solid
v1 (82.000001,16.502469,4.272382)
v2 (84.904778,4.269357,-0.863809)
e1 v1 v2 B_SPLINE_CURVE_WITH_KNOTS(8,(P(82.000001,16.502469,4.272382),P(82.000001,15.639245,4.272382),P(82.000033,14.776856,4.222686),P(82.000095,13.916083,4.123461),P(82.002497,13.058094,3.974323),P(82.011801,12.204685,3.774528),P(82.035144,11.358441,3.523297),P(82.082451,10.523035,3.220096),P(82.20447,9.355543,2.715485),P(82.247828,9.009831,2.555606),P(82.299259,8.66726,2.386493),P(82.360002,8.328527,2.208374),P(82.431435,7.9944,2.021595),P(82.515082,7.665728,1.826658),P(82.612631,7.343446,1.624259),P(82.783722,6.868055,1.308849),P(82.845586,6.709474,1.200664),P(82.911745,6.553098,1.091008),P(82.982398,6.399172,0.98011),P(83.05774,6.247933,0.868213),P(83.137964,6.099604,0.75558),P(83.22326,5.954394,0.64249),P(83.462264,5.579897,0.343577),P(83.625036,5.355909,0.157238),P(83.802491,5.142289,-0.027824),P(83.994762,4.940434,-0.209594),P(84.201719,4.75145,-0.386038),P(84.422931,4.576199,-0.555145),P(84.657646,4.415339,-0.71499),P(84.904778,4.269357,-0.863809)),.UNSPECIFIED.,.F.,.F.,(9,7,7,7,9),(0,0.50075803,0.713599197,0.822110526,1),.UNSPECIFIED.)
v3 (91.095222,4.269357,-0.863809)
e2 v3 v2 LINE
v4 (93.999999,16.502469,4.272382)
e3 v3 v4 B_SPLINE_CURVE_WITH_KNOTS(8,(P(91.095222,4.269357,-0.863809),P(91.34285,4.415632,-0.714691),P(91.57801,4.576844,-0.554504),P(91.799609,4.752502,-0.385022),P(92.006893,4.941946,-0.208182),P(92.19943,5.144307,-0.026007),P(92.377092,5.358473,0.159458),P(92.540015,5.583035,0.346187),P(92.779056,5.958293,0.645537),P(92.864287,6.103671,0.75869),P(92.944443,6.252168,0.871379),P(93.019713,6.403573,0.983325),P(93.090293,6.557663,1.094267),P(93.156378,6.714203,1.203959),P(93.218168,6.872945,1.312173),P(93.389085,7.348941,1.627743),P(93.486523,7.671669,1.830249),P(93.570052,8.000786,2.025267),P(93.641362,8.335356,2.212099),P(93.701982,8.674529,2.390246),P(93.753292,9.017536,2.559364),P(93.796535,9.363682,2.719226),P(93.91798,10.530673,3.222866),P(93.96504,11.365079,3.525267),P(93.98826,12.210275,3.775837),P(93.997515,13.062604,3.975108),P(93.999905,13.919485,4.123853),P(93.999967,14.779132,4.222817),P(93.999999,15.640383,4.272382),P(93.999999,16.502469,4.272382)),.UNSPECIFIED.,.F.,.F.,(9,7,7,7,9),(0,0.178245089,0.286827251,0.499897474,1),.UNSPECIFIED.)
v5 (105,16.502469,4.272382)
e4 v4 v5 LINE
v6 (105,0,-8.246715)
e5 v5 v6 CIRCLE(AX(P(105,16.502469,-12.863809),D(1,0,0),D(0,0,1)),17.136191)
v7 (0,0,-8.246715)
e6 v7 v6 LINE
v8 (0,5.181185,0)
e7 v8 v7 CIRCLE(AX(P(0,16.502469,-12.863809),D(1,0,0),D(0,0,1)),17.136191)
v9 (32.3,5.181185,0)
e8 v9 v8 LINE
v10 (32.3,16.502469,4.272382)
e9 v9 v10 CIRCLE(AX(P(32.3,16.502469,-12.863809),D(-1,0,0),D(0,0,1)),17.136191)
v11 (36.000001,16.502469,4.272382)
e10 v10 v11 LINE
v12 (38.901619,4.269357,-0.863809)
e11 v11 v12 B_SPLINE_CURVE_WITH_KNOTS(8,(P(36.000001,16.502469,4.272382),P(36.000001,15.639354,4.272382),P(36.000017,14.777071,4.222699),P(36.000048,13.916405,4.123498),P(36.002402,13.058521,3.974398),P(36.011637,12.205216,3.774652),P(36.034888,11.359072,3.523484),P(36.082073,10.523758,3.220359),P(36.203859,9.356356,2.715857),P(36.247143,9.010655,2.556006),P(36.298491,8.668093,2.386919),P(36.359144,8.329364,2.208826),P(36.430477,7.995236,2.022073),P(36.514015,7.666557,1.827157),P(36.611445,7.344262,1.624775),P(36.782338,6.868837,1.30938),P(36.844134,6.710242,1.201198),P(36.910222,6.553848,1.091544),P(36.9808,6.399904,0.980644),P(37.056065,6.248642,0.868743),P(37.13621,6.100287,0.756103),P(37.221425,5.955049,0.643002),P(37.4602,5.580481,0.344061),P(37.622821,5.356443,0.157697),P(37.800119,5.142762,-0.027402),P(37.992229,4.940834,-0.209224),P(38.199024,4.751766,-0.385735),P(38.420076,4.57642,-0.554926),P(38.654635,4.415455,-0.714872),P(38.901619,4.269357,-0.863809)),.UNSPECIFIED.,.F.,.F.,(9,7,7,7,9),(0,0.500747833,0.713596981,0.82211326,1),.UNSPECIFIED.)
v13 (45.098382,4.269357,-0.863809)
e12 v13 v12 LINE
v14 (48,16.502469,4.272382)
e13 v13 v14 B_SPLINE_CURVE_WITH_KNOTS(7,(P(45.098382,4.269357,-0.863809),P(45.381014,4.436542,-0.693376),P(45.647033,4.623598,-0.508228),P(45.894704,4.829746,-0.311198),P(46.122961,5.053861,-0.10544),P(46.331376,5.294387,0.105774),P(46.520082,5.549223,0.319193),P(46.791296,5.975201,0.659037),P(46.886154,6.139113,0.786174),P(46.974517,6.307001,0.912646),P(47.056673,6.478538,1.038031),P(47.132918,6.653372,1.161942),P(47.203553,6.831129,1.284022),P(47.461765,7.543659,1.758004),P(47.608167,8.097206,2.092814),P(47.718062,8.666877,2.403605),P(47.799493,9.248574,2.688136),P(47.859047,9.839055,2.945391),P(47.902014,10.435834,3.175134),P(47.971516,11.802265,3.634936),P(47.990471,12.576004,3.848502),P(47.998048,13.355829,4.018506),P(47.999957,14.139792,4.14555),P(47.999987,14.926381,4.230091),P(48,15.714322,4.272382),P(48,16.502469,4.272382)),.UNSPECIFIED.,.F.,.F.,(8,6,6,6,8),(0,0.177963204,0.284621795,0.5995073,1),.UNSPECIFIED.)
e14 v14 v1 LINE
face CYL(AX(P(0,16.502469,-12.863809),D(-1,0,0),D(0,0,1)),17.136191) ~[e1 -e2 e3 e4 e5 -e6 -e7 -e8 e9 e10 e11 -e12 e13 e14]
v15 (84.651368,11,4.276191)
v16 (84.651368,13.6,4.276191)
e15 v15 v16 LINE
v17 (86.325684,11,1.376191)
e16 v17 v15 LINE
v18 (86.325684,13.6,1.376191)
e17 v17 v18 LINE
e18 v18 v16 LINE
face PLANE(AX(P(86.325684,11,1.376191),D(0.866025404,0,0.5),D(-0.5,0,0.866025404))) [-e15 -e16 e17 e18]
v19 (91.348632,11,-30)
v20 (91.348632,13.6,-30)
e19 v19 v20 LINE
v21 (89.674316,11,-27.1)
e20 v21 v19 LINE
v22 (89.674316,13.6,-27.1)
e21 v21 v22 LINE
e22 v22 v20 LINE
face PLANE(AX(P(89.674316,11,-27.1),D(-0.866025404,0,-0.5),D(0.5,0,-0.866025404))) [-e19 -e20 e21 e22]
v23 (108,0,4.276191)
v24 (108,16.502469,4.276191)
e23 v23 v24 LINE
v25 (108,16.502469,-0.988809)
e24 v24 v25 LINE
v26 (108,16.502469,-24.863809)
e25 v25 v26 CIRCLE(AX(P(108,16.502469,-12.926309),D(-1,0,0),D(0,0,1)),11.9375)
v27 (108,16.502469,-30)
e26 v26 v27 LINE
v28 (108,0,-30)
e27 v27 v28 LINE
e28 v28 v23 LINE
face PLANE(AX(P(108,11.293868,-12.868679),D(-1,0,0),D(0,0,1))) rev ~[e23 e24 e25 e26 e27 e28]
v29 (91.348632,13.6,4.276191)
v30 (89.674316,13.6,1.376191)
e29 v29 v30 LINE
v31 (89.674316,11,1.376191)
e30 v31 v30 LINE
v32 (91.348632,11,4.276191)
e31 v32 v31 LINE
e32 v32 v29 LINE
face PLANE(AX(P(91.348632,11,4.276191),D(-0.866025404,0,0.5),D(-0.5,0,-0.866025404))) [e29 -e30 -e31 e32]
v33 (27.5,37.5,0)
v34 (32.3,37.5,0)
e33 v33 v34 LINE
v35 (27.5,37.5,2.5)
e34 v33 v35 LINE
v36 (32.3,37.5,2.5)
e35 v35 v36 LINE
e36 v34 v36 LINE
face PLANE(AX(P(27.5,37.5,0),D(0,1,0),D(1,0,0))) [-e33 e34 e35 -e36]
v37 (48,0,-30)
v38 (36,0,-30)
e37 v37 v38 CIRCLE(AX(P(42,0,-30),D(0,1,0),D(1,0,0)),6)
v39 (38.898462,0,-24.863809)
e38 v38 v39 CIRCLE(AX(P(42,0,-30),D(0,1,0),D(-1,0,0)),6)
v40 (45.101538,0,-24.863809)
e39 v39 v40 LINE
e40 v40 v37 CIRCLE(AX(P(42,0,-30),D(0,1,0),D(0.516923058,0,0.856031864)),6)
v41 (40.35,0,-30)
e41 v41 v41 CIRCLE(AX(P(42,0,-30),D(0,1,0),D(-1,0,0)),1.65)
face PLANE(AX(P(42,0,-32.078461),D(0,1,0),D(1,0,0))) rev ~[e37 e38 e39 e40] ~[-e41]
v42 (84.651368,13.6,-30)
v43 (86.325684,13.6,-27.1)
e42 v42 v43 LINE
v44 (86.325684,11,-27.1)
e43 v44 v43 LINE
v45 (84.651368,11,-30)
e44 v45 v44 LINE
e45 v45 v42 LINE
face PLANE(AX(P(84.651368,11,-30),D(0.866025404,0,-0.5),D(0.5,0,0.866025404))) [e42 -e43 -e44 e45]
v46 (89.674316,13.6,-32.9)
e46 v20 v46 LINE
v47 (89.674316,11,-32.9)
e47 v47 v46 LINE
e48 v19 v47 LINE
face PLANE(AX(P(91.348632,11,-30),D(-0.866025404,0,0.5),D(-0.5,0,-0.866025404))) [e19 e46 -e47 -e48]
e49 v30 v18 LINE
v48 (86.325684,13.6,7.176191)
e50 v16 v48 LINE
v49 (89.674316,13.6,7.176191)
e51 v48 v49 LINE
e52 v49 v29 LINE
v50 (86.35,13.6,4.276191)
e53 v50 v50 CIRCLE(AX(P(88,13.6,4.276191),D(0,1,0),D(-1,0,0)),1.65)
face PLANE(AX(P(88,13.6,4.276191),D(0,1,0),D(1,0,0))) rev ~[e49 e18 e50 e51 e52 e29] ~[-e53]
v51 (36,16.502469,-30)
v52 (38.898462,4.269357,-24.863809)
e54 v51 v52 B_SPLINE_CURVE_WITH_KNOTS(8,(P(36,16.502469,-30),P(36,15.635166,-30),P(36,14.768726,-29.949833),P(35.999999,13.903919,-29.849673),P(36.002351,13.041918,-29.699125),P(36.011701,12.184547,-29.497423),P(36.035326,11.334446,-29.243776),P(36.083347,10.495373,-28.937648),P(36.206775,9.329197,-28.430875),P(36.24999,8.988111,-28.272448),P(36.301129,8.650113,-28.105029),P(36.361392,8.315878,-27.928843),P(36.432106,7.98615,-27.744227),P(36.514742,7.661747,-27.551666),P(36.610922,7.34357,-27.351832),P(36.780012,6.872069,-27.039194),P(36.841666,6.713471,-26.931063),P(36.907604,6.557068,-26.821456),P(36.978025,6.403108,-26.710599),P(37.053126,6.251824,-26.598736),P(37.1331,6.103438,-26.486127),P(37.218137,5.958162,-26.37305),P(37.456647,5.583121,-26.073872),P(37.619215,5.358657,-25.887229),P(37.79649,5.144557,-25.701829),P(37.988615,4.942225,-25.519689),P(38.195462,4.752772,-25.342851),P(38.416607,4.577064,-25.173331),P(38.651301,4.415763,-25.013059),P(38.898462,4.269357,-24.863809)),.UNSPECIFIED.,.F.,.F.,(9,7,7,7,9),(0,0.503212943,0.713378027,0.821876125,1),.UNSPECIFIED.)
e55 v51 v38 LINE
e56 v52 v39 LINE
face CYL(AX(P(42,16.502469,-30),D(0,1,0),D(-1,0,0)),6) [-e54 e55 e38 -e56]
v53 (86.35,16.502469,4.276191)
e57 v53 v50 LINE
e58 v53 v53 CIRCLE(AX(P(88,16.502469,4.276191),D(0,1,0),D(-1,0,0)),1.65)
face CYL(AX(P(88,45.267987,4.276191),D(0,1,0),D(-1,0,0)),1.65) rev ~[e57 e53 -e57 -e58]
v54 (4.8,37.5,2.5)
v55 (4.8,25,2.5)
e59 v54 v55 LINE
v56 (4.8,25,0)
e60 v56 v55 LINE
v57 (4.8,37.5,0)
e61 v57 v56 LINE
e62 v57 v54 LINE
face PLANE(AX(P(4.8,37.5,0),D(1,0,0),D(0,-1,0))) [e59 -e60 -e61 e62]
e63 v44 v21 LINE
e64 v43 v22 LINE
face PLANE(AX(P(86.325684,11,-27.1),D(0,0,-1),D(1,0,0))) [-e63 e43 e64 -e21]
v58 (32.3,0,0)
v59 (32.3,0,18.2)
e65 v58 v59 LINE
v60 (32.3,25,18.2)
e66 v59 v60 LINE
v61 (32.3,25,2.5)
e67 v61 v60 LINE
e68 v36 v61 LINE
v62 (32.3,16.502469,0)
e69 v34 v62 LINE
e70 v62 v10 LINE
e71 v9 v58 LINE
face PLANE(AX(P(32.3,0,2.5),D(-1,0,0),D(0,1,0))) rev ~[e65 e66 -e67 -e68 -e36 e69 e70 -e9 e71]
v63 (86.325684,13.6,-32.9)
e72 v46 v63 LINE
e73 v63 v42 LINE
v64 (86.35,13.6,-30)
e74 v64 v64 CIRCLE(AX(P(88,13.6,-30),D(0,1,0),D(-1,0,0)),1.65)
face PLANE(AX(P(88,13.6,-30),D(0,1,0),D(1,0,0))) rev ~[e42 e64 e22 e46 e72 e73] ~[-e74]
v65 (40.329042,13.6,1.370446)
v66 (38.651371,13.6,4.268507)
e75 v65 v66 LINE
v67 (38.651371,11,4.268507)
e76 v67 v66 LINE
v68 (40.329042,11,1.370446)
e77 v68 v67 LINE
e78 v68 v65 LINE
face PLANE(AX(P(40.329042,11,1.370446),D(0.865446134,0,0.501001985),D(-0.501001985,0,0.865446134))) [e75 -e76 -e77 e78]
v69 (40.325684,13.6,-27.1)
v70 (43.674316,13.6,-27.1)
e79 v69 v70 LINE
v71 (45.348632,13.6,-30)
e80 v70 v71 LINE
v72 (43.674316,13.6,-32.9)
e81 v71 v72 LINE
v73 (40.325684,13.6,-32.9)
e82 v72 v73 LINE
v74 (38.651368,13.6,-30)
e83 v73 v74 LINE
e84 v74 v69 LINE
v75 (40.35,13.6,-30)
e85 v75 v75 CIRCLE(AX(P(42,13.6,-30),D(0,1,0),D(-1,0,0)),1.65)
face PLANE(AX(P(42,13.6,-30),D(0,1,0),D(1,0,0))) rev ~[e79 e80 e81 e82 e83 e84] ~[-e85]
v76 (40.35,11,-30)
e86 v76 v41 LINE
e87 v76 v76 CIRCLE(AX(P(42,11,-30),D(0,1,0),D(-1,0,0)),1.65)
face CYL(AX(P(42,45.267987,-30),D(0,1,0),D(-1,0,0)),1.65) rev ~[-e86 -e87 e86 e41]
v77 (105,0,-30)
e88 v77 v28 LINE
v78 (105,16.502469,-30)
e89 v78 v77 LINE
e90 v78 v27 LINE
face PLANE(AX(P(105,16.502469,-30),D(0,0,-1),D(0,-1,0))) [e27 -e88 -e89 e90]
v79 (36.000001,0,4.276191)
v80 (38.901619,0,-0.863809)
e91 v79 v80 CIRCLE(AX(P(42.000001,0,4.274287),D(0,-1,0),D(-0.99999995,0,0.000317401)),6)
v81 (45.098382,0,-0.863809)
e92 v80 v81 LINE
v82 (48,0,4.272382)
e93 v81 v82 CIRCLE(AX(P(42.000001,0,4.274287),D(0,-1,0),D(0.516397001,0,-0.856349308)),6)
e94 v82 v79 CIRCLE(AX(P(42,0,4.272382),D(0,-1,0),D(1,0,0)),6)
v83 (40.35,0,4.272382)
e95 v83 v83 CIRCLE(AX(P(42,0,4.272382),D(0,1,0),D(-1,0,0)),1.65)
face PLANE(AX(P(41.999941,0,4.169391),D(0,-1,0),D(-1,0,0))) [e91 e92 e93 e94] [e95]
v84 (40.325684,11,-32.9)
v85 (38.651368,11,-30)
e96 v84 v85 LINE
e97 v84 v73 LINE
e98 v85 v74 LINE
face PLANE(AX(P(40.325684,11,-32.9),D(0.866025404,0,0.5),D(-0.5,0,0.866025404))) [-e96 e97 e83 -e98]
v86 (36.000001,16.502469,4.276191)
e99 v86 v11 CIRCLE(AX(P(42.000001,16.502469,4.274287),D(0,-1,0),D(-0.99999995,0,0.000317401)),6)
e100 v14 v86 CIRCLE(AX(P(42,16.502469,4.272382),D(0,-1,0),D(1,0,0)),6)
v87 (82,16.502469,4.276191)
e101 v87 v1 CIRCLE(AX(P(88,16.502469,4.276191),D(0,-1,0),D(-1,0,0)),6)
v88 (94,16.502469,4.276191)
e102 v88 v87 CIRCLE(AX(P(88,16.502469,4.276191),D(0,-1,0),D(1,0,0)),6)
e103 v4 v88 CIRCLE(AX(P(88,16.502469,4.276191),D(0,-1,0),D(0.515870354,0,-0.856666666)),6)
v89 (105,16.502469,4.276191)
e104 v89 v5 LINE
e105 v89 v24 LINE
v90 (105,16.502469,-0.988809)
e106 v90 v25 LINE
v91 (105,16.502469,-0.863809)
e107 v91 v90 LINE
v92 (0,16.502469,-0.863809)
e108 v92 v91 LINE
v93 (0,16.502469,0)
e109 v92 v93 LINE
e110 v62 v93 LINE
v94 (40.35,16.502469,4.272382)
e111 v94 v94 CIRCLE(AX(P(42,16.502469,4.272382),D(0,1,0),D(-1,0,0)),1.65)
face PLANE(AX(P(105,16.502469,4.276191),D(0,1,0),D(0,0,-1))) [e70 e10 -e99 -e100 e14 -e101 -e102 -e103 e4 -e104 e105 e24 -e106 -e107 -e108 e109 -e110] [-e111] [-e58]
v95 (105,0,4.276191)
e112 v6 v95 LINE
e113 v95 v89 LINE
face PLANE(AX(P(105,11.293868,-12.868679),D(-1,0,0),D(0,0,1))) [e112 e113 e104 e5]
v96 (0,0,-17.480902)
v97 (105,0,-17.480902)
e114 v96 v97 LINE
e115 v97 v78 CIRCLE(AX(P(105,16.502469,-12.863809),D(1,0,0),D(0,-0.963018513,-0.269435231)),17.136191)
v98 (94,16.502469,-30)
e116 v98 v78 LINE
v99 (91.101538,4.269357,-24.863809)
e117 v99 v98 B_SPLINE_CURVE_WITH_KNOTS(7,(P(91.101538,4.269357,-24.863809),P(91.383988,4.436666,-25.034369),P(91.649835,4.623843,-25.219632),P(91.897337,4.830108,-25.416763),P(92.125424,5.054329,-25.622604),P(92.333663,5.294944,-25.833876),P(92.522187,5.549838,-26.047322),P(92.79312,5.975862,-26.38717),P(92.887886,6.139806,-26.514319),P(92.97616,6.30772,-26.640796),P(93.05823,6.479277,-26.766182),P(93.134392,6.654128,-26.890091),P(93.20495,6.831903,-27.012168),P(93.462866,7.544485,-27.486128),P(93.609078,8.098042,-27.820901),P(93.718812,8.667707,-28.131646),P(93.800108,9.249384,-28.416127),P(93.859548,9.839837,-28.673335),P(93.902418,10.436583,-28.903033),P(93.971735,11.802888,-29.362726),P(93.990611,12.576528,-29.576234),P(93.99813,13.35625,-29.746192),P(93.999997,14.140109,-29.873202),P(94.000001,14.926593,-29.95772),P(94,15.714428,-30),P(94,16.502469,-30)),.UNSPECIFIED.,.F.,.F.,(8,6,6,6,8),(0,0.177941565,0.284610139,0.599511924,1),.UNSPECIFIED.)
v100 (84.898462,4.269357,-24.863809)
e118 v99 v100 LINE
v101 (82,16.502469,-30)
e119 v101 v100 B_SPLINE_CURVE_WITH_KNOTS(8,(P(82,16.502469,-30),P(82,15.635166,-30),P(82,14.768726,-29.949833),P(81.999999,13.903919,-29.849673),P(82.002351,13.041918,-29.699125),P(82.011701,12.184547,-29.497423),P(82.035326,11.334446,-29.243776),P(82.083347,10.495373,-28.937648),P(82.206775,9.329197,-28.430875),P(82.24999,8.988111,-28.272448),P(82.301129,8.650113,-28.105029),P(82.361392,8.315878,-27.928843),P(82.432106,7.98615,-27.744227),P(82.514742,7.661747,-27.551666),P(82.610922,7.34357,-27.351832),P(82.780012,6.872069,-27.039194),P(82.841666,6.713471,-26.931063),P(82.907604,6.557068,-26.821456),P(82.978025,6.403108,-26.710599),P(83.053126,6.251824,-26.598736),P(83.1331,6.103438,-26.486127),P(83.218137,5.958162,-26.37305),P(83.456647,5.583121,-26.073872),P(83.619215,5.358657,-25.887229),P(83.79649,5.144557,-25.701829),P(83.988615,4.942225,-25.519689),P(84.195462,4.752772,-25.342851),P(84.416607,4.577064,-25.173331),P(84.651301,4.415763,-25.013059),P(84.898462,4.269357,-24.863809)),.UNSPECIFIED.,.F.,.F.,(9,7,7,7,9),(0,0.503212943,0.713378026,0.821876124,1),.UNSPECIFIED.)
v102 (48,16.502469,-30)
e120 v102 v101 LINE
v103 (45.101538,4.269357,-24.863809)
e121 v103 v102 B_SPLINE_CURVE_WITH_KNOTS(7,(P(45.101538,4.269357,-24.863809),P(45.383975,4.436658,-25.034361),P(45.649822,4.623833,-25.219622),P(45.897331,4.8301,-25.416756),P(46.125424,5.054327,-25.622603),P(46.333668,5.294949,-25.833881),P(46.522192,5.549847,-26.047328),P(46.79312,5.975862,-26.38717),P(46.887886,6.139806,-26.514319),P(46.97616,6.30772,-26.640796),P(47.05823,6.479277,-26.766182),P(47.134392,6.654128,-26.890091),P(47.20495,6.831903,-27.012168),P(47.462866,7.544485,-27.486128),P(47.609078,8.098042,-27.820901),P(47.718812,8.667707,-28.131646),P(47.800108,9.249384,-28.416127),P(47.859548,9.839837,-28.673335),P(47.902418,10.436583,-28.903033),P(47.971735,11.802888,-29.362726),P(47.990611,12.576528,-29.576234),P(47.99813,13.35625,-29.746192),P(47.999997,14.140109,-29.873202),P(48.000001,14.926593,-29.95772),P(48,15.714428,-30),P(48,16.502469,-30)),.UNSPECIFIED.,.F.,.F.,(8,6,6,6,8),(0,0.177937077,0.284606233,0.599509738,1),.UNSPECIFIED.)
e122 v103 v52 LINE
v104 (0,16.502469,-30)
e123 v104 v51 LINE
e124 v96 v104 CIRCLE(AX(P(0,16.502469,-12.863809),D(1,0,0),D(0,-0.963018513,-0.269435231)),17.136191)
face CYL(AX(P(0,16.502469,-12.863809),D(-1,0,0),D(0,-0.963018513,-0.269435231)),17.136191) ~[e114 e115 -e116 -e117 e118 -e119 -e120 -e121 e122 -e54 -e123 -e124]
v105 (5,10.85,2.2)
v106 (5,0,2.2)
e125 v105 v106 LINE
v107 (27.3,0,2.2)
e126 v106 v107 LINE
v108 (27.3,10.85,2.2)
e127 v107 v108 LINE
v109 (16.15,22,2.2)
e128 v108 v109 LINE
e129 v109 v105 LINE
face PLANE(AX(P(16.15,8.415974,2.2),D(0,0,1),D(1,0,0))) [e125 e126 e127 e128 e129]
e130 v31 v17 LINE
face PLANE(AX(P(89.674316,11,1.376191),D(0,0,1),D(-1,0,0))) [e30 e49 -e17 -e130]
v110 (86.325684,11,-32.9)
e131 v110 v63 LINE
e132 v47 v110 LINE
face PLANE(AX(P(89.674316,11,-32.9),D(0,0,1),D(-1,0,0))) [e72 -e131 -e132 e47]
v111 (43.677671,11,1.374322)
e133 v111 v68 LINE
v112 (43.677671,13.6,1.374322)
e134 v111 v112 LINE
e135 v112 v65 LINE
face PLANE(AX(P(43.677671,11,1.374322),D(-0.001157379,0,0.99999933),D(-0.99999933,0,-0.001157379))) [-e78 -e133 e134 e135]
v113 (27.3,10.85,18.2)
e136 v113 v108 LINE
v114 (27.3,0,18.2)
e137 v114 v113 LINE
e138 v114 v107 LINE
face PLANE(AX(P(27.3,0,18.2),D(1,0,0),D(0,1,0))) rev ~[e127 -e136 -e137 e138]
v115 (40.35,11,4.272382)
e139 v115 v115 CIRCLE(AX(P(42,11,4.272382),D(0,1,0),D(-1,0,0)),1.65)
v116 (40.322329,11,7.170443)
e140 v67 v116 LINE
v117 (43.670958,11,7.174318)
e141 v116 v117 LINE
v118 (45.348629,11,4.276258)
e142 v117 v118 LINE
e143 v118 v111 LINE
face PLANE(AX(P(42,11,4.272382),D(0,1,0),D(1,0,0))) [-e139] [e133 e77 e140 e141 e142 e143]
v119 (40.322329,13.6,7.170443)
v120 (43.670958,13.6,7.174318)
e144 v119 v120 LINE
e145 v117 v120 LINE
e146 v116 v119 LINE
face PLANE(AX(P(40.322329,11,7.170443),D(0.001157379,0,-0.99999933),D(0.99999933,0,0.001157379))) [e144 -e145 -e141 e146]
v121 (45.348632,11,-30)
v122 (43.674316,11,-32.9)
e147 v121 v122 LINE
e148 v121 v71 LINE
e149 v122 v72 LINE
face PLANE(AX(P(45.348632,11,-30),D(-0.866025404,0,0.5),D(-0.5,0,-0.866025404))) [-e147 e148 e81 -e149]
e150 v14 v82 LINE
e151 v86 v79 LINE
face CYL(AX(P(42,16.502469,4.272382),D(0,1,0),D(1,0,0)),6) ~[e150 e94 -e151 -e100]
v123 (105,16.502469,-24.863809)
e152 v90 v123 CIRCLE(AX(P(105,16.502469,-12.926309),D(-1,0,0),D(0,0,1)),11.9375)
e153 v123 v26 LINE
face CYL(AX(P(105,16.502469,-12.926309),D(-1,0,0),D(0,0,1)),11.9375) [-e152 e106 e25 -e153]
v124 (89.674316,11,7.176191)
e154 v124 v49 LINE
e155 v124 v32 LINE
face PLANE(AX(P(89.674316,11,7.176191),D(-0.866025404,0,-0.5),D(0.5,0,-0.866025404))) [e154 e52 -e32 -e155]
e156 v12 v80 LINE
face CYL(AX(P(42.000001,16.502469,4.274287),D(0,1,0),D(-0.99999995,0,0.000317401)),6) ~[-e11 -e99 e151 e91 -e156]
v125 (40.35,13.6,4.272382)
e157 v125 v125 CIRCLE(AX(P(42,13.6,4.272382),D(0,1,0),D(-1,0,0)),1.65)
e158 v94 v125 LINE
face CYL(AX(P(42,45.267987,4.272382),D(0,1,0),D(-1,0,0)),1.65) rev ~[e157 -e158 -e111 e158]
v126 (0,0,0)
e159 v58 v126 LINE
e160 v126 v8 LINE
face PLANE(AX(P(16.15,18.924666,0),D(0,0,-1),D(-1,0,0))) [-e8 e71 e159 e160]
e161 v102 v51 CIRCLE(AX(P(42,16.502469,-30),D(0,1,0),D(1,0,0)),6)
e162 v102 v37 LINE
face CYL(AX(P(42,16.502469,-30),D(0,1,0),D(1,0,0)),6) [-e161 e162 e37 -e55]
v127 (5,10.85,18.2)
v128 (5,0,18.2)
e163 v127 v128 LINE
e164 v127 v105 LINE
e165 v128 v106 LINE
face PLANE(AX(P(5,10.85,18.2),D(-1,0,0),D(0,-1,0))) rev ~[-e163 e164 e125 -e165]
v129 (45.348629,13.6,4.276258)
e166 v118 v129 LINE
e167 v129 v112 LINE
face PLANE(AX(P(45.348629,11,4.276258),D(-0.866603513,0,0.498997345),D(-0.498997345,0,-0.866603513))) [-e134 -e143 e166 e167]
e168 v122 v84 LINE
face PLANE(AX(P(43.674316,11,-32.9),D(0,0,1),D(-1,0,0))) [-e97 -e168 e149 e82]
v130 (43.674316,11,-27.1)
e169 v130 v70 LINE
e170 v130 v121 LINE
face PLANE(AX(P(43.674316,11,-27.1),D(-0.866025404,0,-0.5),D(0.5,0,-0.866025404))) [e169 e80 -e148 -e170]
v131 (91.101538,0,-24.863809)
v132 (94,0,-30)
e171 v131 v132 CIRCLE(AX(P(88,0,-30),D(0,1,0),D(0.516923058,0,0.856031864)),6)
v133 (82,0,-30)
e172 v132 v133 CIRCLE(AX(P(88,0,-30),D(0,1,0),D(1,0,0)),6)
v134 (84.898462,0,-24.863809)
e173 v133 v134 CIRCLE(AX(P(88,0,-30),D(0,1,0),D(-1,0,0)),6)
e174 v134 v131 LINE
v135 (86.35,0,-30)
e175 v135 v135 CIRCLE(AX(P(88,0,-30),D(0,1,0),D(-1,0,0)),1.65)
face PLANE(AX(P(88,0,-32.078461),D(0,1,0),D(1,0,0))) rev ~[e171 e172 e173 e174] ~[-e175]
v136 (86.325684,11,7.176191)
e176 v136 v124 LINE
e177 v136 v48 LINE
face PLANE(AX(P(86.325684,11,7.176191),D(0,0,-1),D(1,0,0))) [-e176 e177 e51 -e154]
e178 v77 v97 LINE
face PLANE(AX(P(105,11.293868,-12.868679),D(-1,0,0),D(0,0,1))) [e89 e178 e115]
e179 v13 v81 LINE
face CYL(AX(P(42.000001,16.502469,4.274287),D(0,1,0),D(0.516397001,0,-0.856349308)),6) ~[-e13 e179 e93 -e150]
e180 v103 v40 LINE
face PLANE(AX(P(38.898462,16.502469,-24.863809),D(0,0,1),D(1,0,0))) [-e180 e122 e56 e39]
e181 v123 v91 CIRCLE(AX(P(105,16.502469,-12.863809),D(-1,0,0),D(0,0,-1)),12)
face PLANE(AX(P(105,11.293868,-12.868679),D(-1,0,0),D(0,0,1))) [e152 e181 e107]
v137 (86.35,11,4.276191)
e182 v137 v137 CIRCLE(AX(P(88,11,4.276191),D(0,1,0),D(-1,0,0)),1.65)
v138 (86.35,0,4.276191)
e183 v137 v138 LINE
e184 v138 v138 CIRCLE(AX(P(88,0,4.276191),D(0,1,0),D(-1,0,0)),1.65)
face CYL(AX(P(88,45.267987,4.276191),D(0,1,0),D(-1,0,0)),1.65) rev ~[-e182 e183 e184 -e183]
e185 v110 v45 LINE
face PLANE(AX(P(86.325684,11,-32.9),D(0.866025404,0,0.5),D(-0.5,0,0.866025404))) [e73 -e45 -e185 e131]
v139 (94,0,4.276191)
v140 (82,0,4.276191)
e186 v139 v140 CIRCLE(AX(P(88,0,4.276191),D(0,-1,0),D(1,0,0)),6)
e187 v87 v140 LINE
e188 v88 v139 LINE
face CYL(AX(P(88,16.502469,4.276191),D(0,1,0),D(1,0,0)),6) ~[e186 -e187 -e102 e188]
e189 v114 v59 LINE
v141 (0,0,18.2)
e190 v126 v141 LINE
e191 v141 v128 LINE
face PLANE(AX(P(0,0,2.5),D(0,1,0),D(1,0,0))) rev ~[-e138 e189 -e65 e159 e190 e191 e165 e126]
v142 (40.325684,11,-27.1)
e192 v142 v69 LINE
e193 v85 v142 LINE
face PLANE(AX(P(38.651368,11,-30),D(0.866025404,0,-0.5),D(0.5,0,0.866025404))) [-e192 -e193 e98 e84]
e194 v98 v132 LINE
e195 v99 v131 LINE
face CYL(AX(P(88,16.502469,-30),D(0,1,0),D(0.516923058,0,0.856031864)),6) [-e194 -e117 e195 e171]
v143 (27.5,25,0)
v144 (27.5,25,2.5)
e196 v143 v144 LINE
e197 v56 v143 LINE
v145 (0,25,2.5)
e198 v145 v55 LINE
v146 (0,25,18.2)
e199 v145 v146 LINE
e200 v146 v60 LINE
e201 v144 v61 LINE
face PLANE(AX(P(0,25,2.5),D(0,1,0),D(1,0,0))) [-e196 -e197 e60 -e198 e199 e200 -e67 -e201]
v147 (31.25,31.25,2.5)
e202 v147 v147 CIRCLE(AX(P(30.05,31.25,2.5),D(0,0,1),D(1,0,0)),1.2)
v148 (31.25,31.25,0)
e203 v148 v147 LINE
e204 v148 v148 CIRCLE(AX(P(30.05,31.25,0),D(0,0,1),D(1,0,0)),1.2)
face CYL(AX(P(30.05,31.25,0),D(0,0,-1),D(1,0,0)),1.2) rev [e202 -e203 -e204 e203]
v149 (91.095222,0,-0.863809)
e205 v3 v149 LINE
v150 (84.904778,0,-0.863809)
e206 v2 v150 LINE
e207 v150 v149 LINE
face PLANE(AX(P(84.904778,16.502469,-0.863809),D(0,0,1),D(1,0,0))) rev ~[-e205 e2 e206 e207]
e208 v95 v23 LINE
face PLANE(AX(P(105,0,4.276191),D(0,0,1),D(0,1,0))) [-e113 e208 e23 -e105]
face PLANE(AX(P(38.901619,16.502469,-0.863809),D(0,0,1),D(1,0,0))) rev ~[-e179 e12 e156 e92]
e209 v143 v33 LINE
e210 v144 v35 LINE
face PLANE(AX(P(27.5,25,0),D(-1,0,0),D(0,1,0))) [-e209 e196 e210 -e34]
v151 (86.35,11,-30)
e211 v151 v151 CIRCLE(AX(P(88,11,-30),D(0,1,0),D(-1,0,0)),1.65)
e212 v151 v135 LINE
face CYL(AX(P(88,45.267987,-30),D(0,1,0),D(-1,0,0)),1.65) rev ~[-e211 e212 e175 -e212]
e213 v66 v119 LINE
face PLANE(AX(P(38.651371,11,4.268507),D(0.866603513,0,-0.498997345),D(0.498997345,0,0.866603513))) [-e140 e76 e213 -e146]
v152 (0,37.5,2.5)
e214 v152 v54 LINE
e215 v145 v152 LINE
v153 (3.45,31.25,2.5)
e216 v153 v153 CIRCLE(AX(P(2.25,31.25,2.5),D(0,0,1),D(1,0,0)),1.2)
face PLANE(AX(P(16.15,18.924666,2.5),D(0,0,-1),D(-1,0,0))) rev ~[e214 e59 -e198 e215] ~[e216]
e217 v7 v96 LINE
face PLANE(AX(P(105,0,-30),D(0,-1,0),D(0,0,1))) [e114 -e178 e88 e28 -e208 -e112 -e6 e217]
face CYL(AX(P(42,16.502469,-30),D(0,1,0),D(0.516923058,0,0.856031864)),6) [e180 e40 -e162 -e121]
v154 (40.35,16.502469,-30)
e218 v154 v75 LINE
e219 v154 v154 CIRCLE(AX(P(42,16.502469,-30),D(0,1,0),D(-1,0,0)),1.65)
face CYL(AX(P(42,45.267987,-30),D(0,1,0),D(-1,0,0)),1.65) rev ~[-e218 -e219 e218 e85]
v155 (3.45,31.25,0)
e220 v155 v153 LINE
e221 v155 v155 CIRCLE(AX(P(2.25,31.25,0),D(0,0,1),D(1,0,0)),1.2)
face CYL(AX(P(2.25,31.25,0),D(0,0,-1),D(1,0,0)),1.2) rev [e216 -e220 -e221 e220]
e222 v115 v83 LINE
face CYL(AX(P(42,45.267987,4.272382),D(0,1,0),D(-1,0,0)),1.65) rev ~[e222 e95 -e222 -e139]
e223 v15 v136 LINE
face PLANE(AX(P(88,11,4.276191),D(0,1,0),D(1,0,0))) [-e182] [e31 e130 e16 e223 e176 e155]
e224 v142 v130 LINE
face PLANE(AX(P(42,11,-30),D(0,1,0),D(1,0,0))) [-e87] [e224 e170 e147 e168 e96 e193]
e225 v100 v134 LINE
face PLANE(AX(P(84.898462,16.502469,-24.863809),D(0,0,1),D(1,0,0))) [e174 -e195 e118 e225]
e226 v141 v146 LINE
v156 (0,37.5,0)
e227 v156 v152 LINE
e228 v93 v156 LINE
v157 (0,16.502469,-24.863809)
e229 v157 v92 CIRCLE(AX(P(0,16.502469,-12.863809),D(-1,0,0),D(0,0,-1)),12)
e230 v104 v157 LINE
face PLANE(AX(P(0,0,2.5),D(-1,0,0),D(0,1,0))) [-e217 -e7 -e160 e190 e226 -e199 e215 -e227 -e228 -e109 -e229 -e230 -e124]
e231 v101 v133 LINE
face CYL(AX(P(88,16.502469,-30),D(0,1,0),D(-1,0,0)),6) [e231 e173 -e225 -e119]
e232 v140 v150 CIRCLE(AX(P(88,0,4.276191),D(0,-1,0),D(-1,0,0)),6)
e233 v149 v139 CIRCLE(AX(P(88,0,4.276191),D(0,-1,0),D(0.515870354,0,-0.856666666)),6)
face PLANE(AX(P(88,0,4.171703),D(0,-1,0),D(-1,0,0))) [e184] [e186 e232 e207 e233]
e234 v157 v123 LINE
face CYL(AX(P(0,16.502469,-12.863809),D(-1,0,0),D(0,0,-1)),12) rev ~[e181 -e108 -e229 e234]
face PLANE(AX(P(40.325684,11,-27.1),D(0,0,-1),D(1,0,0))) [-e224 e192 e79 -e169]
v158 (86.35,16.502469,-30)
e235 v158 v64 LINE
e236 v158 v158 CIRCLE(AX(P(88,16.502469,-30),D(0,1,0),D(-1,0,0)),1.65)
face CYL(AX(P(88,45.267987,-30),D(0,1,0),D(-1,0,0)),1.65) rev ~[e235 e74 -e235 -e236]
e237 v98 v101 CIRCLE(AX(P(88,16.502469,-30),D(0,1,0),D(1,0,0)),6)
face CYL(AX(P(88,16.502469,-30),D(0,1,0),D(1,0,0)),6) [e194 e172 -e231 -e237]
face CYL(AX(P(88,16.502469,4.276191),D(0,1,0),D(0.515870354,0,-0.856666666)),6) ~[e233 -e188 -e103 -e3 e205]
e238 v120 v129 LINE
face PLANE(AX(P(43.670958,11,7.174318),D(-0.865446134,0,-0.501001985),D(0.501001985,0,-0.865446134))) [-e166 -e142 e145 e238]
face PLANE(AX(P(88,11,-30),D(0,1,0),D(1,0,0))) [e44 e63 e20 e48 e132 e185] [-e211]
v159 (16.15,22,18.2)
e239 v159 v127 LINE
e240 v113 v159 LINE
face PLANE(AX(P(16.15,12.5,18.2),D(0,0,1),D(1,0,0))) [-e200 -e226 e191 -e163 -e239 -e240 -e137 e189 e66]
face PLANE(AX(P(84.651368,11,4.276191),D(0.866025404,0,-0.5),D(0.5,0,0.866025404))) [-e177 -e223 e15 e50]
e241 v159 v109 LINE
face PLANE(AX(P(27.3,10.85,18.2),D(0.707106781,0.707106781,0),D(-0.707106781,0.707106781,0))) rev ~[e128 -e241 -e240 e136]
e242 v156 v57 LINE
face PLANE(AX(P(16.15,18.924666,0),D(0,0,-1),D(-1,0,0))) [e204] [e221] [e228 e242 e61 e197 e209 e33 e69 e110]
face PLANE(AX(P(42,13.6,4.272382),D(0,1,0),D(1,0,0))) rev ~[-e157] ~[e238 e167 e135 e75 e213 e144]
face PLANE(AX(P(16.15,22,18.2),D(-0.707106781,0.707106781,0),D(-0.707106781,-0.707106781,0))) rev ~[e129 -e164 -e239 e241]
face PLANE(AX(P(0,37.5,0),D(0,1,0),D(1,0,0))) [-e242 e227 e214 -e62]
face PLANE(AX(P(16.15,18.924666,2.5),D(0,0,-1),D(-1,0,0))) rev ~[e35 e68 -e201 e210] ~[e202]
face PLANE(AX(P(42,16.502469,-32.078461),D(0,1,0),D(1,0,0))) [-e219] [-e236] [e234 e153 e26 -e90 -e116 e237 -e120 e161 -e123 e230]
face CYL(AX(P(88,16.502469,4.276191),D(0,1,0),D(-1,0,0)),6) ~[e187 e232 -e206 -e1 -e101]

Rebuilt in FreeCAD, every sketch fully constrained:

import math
import FreeCAD as App
import Part
import Sketcher

V = App.Vector
Q = App.Units.Quantity

doc = App.newDocument("Part")
params = doc.addObject("Spreadsheet::Sheet", "Params")
for row, (alias, value) in enumerate([
    ("sketch1_diameter", "2.4 mm"),
    ("sketch1_width", "32.3 mm"),
    ("sketch1_width2", "4.8 mm"),
    ("sketch1_height", "37.5 mm"),
    ("sketch1_height2", "12.5 mm"),
    ("pad1_length", "2.5 mm"),
    ("sketch2_height", "25 mm"),
    ("sketch2_width", "32.3 mm"),
    ("pad2_length", "15.7 mm"),
    ("sketch3_radius", "12 mm"),
    ("pad3_length", "105 mm"),
    ("pad4_length", "3 mm"),
    ("sketch5_radius", "6 mm"),
    ("pad5_length", "16.502469 mm"),
    ("sketch6_diameter", "3.3 mm"),
    ("pocket2_length", "2.6 mm"),
    ("sketch8_width", "22.3 mm"),
    ("pocket3_length", "16 mm"),
], start=1):
    params.set(f"A{row}", alias)
    params.set(f"B{row}", "=" + value)
    params.setAlias(f"B{row}", alias)

body = doc.addObject("PartDesign::Body", "Body")

sketch1 = body.newObject("Sketcher::SketchObject", "Sketch")
sketch1.AttachmentSupport = (doc.getObject("XY_Plane"), [""])
sketch1.MapMode = "FlatFace"
sketch1.addGeometry([
    Part.LineSegment(V(0, 37.5, 0), V(0, 0, 0)),
    Part.LineSegment(V(0, 0, 0), V(32.3, 0, 0)),
    Part.LineSegment(V(32.3, 0, 0), V(32.3, 37.5, 0)),
    Part.LineSegment(V(32.3, 37.5, 0), V(27.5, 37.5, 0)),
    Part.LineSegment(V(27.5, 37.5, 0), V(27.5, 25, 0)),
    Part.LineSegment(V(27.5, 25, 0), V(4.8, 25, 0)),
    Part.LineSegment(V(4.8, 25, 0), V(4.8, 37.5, 0)),
    Part.LineSegment(V(4.8, 37.5, 0), V(0, 37.5, 0)),
    Part.Circle(V(30.05, 31.25, 0), V(0, 0, 1), 1.2),
    Part.Circle(V(2.25, 31.25, 0), V(0, 0, 1), 1.2),
], False)
sketch1.addConstraint([
    Sketcher.Constraint("Coincident", 0, 2, 1, 1),
    Sketcher.Constraint("Coincident", 1, 2, 2, 1),
    Sketcher.Constraint("Coincident", 2, 2, 3, 1),
    Sketcher.Constraint("Coincident", 3, 2, 4, 1),
    Sketcher.Constraint("Coincident", 4, 2, 5, 1),
    Sketcher.Constraint("Coincident", 5, 2, 6, 1),
    Sketcher.Constraint("Coincident", 6, 2, 7, 1),
    Sketcher.Constraint("Coincident", 7, 2, 0, 1),
    Sketcher.Constraint("Vertical", 0),
    Sketcher.Constraint("Horizontal", 1),
    Sketcher.Constraint("Vertical", 2),
    Sketcher.Constraint("Horizontal", 3),
    Sketcher.Constraint("Vertical", 4),
    Sketcher.Constraint("Horizontal", 5),
    Sketcher.Constraint("Vertical", 6),
    Sketcher.Constraint("Horizontal", 7),
    Sketcher.Constraint("Coincident", 0, 2, -1, 1),
    Sketcher.Constraint("Equal", 8, 9),
    Sketcher.Constraint("Horizontal", 8, 3, 9, 3),
    Sketcher.Constraint("Horizontal", 3, 2, 6, 2),
    Sketcher.Constraint("Equal", 3, 7),
    Sketcher.Constraint("Diameter", 8, Q("2.4 mm")),
    Sketcher.Constraint("DistanceX", 1, 1, 1, 2, Q("32.3 mm")),
    Sketcher.Constraint("DistanceX", 3, 2, 3, 1, Q("4.8 mm")),
    Sketcher.Constraint("DistanceY", 0, 2, 0, 1, Q("37.5 mm")),
    Sketcher.Constraint("DistanceY", 4, 2, 4, 1, Q("12.5 mm")),
    Sketcher.Constraint("DistanceX", 9, 3, 8, 3, Q("27.8 mm")),
    Sketcher.Constraint("DistanceX", -1, 1, 8, 3, Q("30.05 mm")),
    Sketcher.Constraint("DistanceY", -1, 1, 8, 3, Q("31.25 mm")),
])
sketch1.setExpression("Constraints[21]", "Params.sketch1_diameter")
sketch1.setExpression("Constraints[22]", "Params.sketch1_width")
sketch1.setExpression("Constraints[23]", "Params.sketch1_width2")
sketch1.setExpression("Constraints[24]", "Params.sketch1_height")
sketch1.setExpression("Constraints[25]", "Params.sketch1_height2")
pad1 = body.newObject("PartDesign::Pad", "Pad")
pad1.Profile = sketch1
pad1.setExpression("Length", "Params.pad1_length")

sketch2 = body.newObject("Sketcher::SketchObject", "Sketch001")
sketch2.AttachmentSupport = (doc.getObject("XY_Plane"), [""])
sketch2.MapMode = "FlatFace"
sketch2.AttachmentOffset = App.Placement(V(0, 0, 2.5), App.Rotation())
sketch2.addGeometry([
    Part.LineSegment(V(0, 25, 0), V(0, 0, 0)),
    Part.LineSegment(V(0, 0, 0), V(32.3, 0, 0)),
    Part.LineSegment(V(32.3, 0, 0), V(32.3, 25, 0)),
    Part.LineSegment(V(32.3, 25, 0), V(0, 25, 0)),
], False)
sketch2.addConstraint([
    Sketcher.Constraint("Coincident", 0, 2, 1, 1),
    Sketcher.Constraint("Coincident", 1, 2, 2, 1),
    Sketcher.Constraint("Coincident", 2, 2, 3, 1),
    Sketcher.Constraint("Coincident", 3, 2, 0, 1),
    Sketcher.Constraint("Vertical", 0),
    Sketcher.Constraint("Horizontal", 1),
    Sketcher.Constraint("Vertical", 2),
    Sketcher.Constraint("Horizontal", 3),
    Sketcher.Constraint("Coincident", 0, 2, -1, 1),
    Sketcher.Constraint("DistanceY", 0, 2, 0, 1, Q("25 mm")),
    Sketcher.Constraint("DistanceX", 1, 1, 1, 2, Q("32.3 mm")),
])
sketch2.setExpression("Constraints[9]", "Params.sketch2_height")
sketch2.setExpression("Constraints[10]", "Params.sketch2_width")
pad2 = body.newObject("PartDesign::Pad", "Pad001")
pad2.Profile = sketch2
pad2.setExpression("Length", "Params.pad2_length")

sketch3 = body.newObject("Sketcher::SketchObject", "Sketch002")
sketch3.AttachmentSupport = (doc.getObject("YZ_Plane"), [""])
sketch3.MapMode = "FlatFace"
sketch3.addGeometry([
    Part.ArcOfCircle(Part.Circle(V(16.502469, -12.863809, 0), V(0, 0, 1), 17.136191), math.radians(90), math.radians(164.369337)),
    Part.LineSegment(V(0, -8.246715, 0), V(0, -17.480902, 0)),
    Part.ArcOfCircle(Part.Circle(V(16.502469, -12.863809, 0), V(0, 0, 1), 17.136191), math.radians(-164.369337), math.radians(-90)),
    Part.LineSegment(V(16.502469, -30, 0), V(16.502469, -24.863809, 0)),
    Part.ArcOfCircle(Part.Circle(V(16.502469, -12.863809, 0), V(0, 0, 1), 12), math.radians(90), math.radians(270)),
    Part.LineSegment(V(16.502469, -0.863809, 0), V(16.502469, 4.272382, 0)),
], False)
sketch3.addConstraint([
    Sketcher.Constraint("Coincident", 0, 2, 1, 1),
    Sketcher.Constraint("Coincident", 1, 2, 2, 1),
    Sketcher.Constraint("Coincident", 2, 2, 3, 1),
    Sketcher.Constraint("Coincident", 3, 2, 4, 2),
    Sketcher.Constraint("Coincident", 4, 1, 5, 1),
    Sketcher.Constraint("Coincident", 5, 2, 0, 1),
    Sketcher.Constraint("Vertical", 1),
    Sketcher.Constraint("Vertical", 3),
    Sketcher.Constraint("Vertical", 5),
    Sketcher.Constraint("Coincident", 2, 3, 0, 3),
    Sketcher.Constraint("Coincident", 4, 3, 0, 3),
    Sketcher.Constraint("Equal", 0, 2),
    Sketcher.Constraint("PointOnObject", 0, 2, -2),
    Sketcher.Constraint("Vertical", 4, 3, 2, 2),
    Sketcher.Constraint("Vertical", 3, 2, 4, 1),
    Sketcher.Constraint("Radius", 4, Q("12 mm")),
    Sketcher.Constraint("DistanceY", 2, 2, -1, 1, Q("30 mm")),
    Sketcher.Constraint("Radius", 0, Q("17.136191 mm")),
    Sketcher.Constraint("DistanceY", 1, 2, 1, 1, Q("9.234187 mm")),
])
sketch3.setExpression("Constraints[15]", "Params.sketch3_radius")
pad3 = body.newObject("PartDesign::Pad", "Pad002")
pad3.Profile = sketch3
pad3.setExpression("Length", "Params.pad3_length")

sketch4 = body.newObject("Sketcher::SketchObject", "Sketch003")
sketch4.AttachmentSupport = (doc.getObject("YZ_Plane"), [""])
sketch4.MapMode = "FlatFace"
sketch4.AttachmentOffset = App.Placement(V(0, 0, 105), App.Rotation())
sketch4.addGeometry([
    Part.LineSegment(V(16.502469, -30, 0), V(16.502469, -24.863809, 0)),
    Part.ArcOfCircle(Part.Circle(V(16.502469, -12.926309, 0), V(0, 0, 1), 11.9375), math.radians(-90), math.radians(90)),
    Part.LineSegment(V(16.502469, -0.988809, 0), V(16.502469, 4.276191, 0)),
    Part.LineSegment(V(16.502469, 4.276191, 0), V(0, 4.276191, 0)),
    Part.LineSegment(V(0, 4.276191, 0), V(0, -30, 0)),
    Part.LineSegment(V(0, -30, 0), V(16.502469, -30, 0)),
], False)
sketch4.addConstraint([
    Sketcher.Constraint("Coincident", 0, 2, 1, 1),
    Sketcher.Constraint("Coincident", 1, 2, 2, 1),
    Sketcher.Constraint("Coincident", 2, 2, 3, 1),
    Sketcher.Constraint("Coincident", 3, 2, 4, 1),
    Sketcher.Constraint("Coincident", 4, 2, 5, 1),
    Sketcher.Constraint("Coincident", 5, 2, 0, 1),
    Sketcher.Constraint("Vertical", 0),
    Sketcher.Constraint("Vertical", 2),
    Sketcher.Constraint("Horizontal", 3),
    Sketcher.Constraint("Vertical", 4),
    Sketcher.Constraint("Horizontal", 5),
    Sketcher.Constraint("PointOnObject", 3, 2, -2),
    Sketcher.Constraint("Vertical", 1, 3, 0, 2),
    Sketcher.Constraint("Vertical", 0, 2, 1, 2),
    Sketcher.Constraint("DistanceY", 4, 2, -1, 1, Q("30 mm")),
    Sketcher.Constraint("Radius", 1, Q("11.9375 mm")),
    Sketcher.Constraint("DistanceY", 2, 1, 2, 2, Q("5.265 mm")),
    Sketcher.Constraint("DistanceX", 3, 2, 3, 1, Q("16.502469 mm")),
    Sketcher.Constraint("DistanceY", 0, 1, 0, 2, Q("5.136191 mm")),
])
pad4 = body.newObject("PartDesign::Pad", "Pad003")
pad4.Profile = sketch4
pad4.setExpression("Length", "Params.pad4_length")

sketch5 = body.newObject("Sketcher::SketchObject", "Sketch004")
sketch5.AttachmentSupport = (doc.getObject("XZ_Plane"), [""])
sketch5.MapMode = "FlatFace"
sketch5.AttachmentOffset = App.Placement(V(0, 0, -16.502469), App.Rotation())
sketch5.addGeometry([
    Part.ArcOfCircle(Part.Circle(V(42, -30, 0), V(0, 0, 1), 6), math.radians(180), math.radians(360)),
    Part.ArcOfCircle(Part.Circle(V(42, -30, 0), V(0, 0, 1), 6), math.radians(121.126082), math.radians(180)),
    Part.LineSegment(V(38.898462, -24.863809, 0), V(45.101538, -24.863809, 0)),
    Part.ArcOfCircle(Part.Circle(V(42, -30, 0), V(0, 0, 1), 6), math.radians(0), math.radians(58.873918)),
    Part.ArcOfCircle(Part.Circle(V(42.000001, 4.274287, 0), V(0, 0, 1), 6), math.radians(-58.909122), math.radians(-0.018186)),
    Part.LineSegment(V(45.098382, -0.863809, 0), V(38.901619, -0.863809, 0)),
    Part.ArcOfCircle(Part.Circle(V(42.000001, 4.274287, 0), V(0, 0, 1), 6), math.radians(179.981814), math.radians(238.909122)),
    Part.ArcOfCircle(Part.Circle(V(42, 4.272382, 0), V(0, 0, 1), 6), math.radians(0), math.radians(179.963628)),
    Part.ArcOfCircle(Part.Circle(V(88, 4.276191, 0), V(0, 0, 1), 6), math.radians(-58.944352), math.radians(0)),
    Part.LineSegment(V(91.095222, -0.863809, 0), V(84.904778, -0.863809, 0)),
    Part.ArcOfCircle(Part.Circle(V(88, 4.276191, 0), V(0, 0, 1), 6), math.radians(-180), math.radians(-121.055648)),
    Part.ArcOfCircle(Part.Circle(V(88, 4.276191, 0), V(0, 0, 1), 6), math.radians(0), math.radians(180)),
    Part.ArcOfCircle(Part.Circle(V(88, -30, 0), V(0, 0, 1), 6), math.radians(180), math.radians(360)),
    Part.ArcOfCircle(Part.Circle(V(88, -30, 0), V(0, 0, 1), 6), math.radians(121.126082), math.radians(180)),
    Part.LineSegment(V(84.898462, -24.863809, 0), V(91.101538, -24.863809, 0)),
    Part.ArcOfCircle(Part.Circle(V(88, -30, 0), V(0, 0, 1), 6), math.radians(0), math.radians(58.873918)),
], False)
sketch5.addConstraint([
    Sketcher.Constraint("Tangent", 0, 1, 1, 2),
    Sketcher.Constraint("Coincident", 1, 1, 2, 1),
    Sketcher.Constraint("Coincident", 2, 2, 3, 2),
    Sketcher.Constraint("Tangent", 3, 1, 0, 2),
    Sketcher.Constraint("Coincident", 4, 1, 5, 1),
    Sketcher.Constraint("Coincident", 5, 2, 6, 2),
    Sketcher.Constraint("Coincident", 6, 1, 7, 2),
    Sketcher.Constraint("Coincident", 7, 1, 4, 2),
    Sketcher.Constraint("Coincident", 8, 1, 9, 1),
    Sketcher.Constraint("Coincident", 9, 2, 10, 2),
    Sketcher.Constraint("Tangent", 10, 1, 11, 2),
    Sketcher.Constraint("Tangent", 11, 1, 8, 2),
    Sketcher.Constraint("Tangent", 12, 1, 13, 2),
    Sketcher.Constraint("Coincident", 13, 1, 14, 1),
    Sketcher.Constraint("Coincident", 14, 2, 15, 2),
    Sketcher.Constraint("Tangent", 15, 1, 12, 2),
    Sketcher.Constraint("Horizontal", 2),
    Sketcher.Constraint("Horizontal", 5),
    Sketcher.Constraint("Horizontal", 9),
    Sketcher.Constraint("Horizontal", 14),
    Sketcher.Constraint("Coincident", 6, 3, 4, 3),
    Sketcher.Constraint("Equal", 0, 1),
    Sketcher.Constraint("Equal", 1, 3),
    Sketcher.Constraint("Equal", 3, 4),
    Sketcher.Constraint("Equal", 4, 6),
    Sketcher.Constraint("Equal", 7, 8),
    Sketcher.Constraint("Equal", 8, 10),
    Sketcher.Constraint("Equal", 10, 11),
    Sketcher.Constraint("Equal", 11, 12),
    Sketcher.Constraint("Equal", 12, 13),
    Sketcher.Constraint("Equal", 13, 15),
    Sketcher.Constraint("Horizontal", 3, 3, 12, 3),
    Sketcher.Constraint("Horizontal", 15, 3, 0, 1),
    Sketcher.Constraint("Horizontal", 0, 1, 3, 1),
    Sketcher.Constraint("Horizontal", 11, 3, 6, 1),
    Sketcher.Constraint("Horizontal", 5, 2, 8, 1),
    Sketcher.Constraint("Horizontal", 6, 1, 10, 1),
    Sketcher.Constraint("Horizontal", 10, 1, 11, 1),
    Sketcher.Constraint("Horizontal", 3, 1, 12, 1),
    Sketcher.Constraint("Horizontal", 2, 2, 13, 1),
    Sketcher.Constraint("Horizontal", 12, 1, 15, 1),
    Sketcher.Constraint("Vertical", 3, 3, 4, 3),
    Sketcher.Constraint("Vertical", 11, 3, 12, 3),
    Sketcher.Constraint("Radius", 0, Q("6 mm")),
    Sketcher.Constraint("DistanceX", -1, 1, 0, 3, Q("42 mm")),
    Sketcher.Constraint("DistanceY", 0, 3, -1, 1, Q("30 mm")),
    Sketcher.Constraint("DistanceX", -1, 1, 8, 3, Q("88 mm")),
    Sketcher.Constraint("DistanceY", 2, 2, 4, 1, Q("24 mm")),
    Sketcher.Constraint("DistanceY", 5, 2, 6, 1, Q("5.14 mm")),
    Sketcher.Constraint("DistanceX", 2, 1, 2, 2, Q("6.203077 mm")),
    Sketcher.Constraint("DistanceX", 5, 2, 5, 1, Q("6.196764 mm")),
    Sketcher.Constraint("DistanceY", 7, 3, 8, 3, Q("0.003809 mm")),
    Sketcher.Constraint("DistanceY", 4, 1, 7, 1, Q("5.136191 mm")),
])
sketch5.setExpression("Constraints[43]", "Params.sketch5_radius")
pad5 = body.newObject("PartDesign::Pad", "Pad004")
pad5.Profile = sketch5
pad5.setExpression("Length", "Params.pad5_length")

sketch6 = body.newObject("Sketcher::SketchObject", "Sketch005")
sketch6.AttachmentSupport = (doc.getObject("XZ_Plane"), [""])
sketch6.MapMode = "FlatFace"
sketch6.AttachmentOffset = App.Placement(V(0, 0, -45.267987), App.Rotation())
sketch6.addGeometry([
    Part.Circle(V(88, 4.276191, 0), V(0, 0, 1), 1.65),
    Part.Circle(V(42, 4.272382, 0), V(0, 0, 1), 1.65),
    Part.Circle(V(42, -30, 0), V(0, 0, 1), 1.65),
    Part.Circle(V(88, -30, 0), V(0, 0, 1), 1.65),
], False)
sketch6.addConstraint([
    Sketcher.Constraint("Equal", 0, 1),
    Sketcher.Constraint("Equal", 1, 2),
    Sketcher.Constraint("Equal", 2, 3),
    Sketcher.Constraint("Horizontal", 2, 3, 3, 3),
    Sketcher.Constraint("Vertical", 1, 3, 2, 3),
    Sketcher.Constraint("Vertical", 0, 3, 3, 3),
    Sketcher.Constraint("Diameter", 0, Q("3.3 mm")),
    Sketcher.Constraint("DistanceX", -1, 1, 0, 3, Q("88 mm")),
    Sketcher.Constraint("DistanceX", -1, 1, 1, 3, Q("42 mm")),
    Sketcher.Constraint("DistanceY", 2, 3, -1, 1, Q("30 mm")),
    Sketcher.Constraint("DistanceY", -1, 1, 0, 3, Q("4.276191 mm")),
    Sketcher.Constraint("DistanceY", 1, 3, 0, 3, Q("0.003809 mm")),
])
sketch6.setExpression("Constraints[6]", "Params.sketch6_diameter")
pocket1 = body.newObject("PartDesign::Pocket", "Pocket")
pocket1.Profile = sketch6
pocket1.Type = "ThroughAll"
pocket1.Reversed = True

sketch7 = body.newObject("Sketcher::SketchObject", "Sketch006")
sketch7.AttachmentSupport = (doc.getObject("XZ_Plane"), [""])
sketch7.MapMode = "FlatFace"
sketch7.AttachmentOffset = App.Placement(V(0, 0, -11), App.Rotation())
sketch7.addGeometry([
    Part.LineSegment(V(45.348632, -30, 0), V(43.674316, -32.9, 0)),
    Part.LineSegment(V(43.674316, -32.9, 0), V(40.325684, -32.9, 0)),
    Part.LineSegment(V(40.325684, -32.9, 0), V(38.651368, -30, 0)),
    Part.LineSegment(V(38.651368, -30, 0), V(40.325684, -27.1, 0)),
    Part.LineSegment(V(40.325684, -27.1, 0), V(43.674316, -27.1, 0)),
    Part.LineSegment(V(43.674316, -27.1, 0), V(45.348632, -30, 0)),
    Part.LineSegment(V(91.348632, -30, 0), V(89.674316, -32.9, 0)),
    Part.LineSegment(V(89.674316, -32.9, 0), V(86.325684, -32.9, 0)),
    Part.LineSegment(V(86.325684, -32.9, 0), V(84.651368, -30, 0)),
    Part.LineSegment(V(84.651368, -30, 0), V(86.325684, -27.1, 0)),
    Part.LineSegment(V(86.325684, -27.1, 0), V(89.674316, -27.1, 0)),
    Part.LineSegment(V(89.674316, -27.1, 0), V(91.348632, -30, 0)),
    Part.LineSegment(V(45.348629, 4.276258, 0), V(43.677671, 1.374322, 0)),
    Part.LineSegment(V(43.677671, 1.374322, 0), V(40.329042, 1.370446, 0)),
    Part.LineSegment(V(40.329042, 1.370446, 0), V(38.651371, 4.268507, 0)),
    Part.LineSegment(V(38.651371, 4.268507, 0), V(40.322329, 7.170443, 0)),
    Part.LineSegment(V(40.322329, 7.170443, 0), V(43.670958, 7.174318, 0)),
    Part.LineSegment(V(43.670958, 7.174318, 0), V(45.348629, 4.276258, 0)),
    Part.LineSegment(V(91.348632, 4.276191, 0), V(89.674316, 1.376191, 0)),
    Part.LineSegment(V(89.674316, 1.376191, 0), V(86.325684, 1.376191, 0)),
    Part.LineSegment(V(86.325684, 1.376191, 0), V(84.651368, 4.276191, 0)),
    Part.LineSegment(V(84.651368, 4.276191, 0), V(86.325684, 7.176191, 0)),
    Part.LineSegment(V(86.325684, 7.176191, 0), V(89.674316, 7.176191, 0)),
    Part.LineSegment(V(89.674316, 7.176191, 0), V(91.348632, 4.276191, 0)),
], False)
sketch7.addConstraint([
    Sketcher.Constraint("Coincident", 0, 2, 1, 1),
    Sketcher.Constraint("Coincident", 1, 2, 2, 1),
    Sketcher.Constraint("Coincident", 2, 2, 3, 1),
    Sketcher.Constraint("Coincident", 3, 2, 4, 1),
    Sketcher.Constraint("Coincident", 4, 2, 5, 1),
    Sketcher.Constraint("Coincident", 5, 2, 0, 1),
    Sketcher.Constraint("Coincident", 6, 2, 7, 1),
    Sketcher.Constraint("Coincident", 7, 2, 8, 1),
    Sketcher.Constraint("Coincident", 8, 2, 9, 1),
    Sketcher.Constraint("Coincident", 9, 2, 10, 1),
    Sketcher.Constraint("Coincident", 10, 2, 11, 1),
    Sketcher.Constraint("Coincident", 11, 2, 6, 1),
    Sketcher.Constraint("Coincident", 12, 2, 13, 1),
    Sketcher.Constraint("Coincident", 13, 2, 14, 1),
    Sketcher.Constraint("Coincident", 14, 2, 15, 1),
    Sketcher.Constraint("Coincident", 15, 2, 16, 1),
    Sketcher.Constraint("Coincident", 16, 2, 17, 1),
    Sketcher.Constraint("Coincident", 17, 2, 12, 1),
    Sketcher.Constraint("Coincident", 18, 2, 19, 1),
    Sketcher.Constraint("Coincident", 19, 2, 20, 1),
    Sketcher.Constraint("Coincident", 20, 2, 21, 1),
    Sketcher.Constraint("Coincident", 21, 2, 22, 1),
    Sketcher.Constraint("Coincident", 22, 2, 23, 1),
    Sketcher.Constraint("Coincident", 23, 2, 18, 1),
    Sketcher.Constraint("Horizontal", 1),
    Sketcher.Constraint("Horizontal", 4),
    Sketcher.Constraint("Horizontal", 7),
    Sketcher.Constraint("Horizontal", 10),
    Sketcher.Constraint("Horizontal", 19),
    Sketcher.Constraint("Horizontal", 22),
    Sketcher.Constraint("Parallel", 0, 3),
    Sketcher.Constraint("Parallel", 2, 5),
    Sketcher.Constraint("Parallel", 3, 6),
    Sketcher.Constraint("Parallel", 5, 8),
    Sketcher.Constraint("Parallel", 6, 9),
    Sketcher.Constraint("Parallel", 8, 11),
    Sketcher.Constraint("Parallel", 12, 15),
    Sketcher.Constraint("Parallel", 13, 16),
    Sketcher.Constraint("Parallel", 14, 17),
    Sketcher.Constraint("Parallel", 9, 18),
    Sketcher.Constraint("Parallel", 11, 20),
    Sketcher.Constraint("Parallel", 18, 21),
    Sketcher.Constraint("Parallel", 20, 23),
    Sketcher.Constraint("Horizontal", 2, 2, 5, 2),
    Sketcher.Constraint("Horizontal", 1, 2, 6, 2),
    Sketcher.Constraint("Horizontal", 5, 2, 8, 2),
    Sketcher.Constraint("Horizontal", 4, 2, 9, 2),
    Sketcher.Constraint("Horizontal", 8, 2, 11, 2),
    Sketcher.Constraint("Horizontal", 20, 2, 23, 2),
    Sketcher.Constraint("Vertical", 1, 2, 3, 2),
    Sketcher.Constraint("Vertical", 0, 2, 4, 2),
    Sketcher.Constraint("Vertical", 10, 2, 18, 2),
    Sketcher.Constraint("Vertical", 9, 2, 19, 2),
    Sketcher.Constraint("Vertical", 8, 2, 20, 2),
    Sketcher.Constraint("Vertical", 19, 2, 21, 2),
    Sketcher.Constraint("Equal", 4, 7),
    Sketcher.Constraint("Equal", 11, 12),
    Sketcher.Constraint("Equal", 12, 13),
    Sketcher.Constraint("Equal", 13, 14),
    Sketcher.Constraint("Equal", 14, 15),
    Sketcher.Constraint("Angle", 0, Q("-120 deg")),
    Sketcher.Constraint("DistanceY", 2, 2, -1, 1, Q("30 mm")),
    Sketcher.Constraint("DistanceX", 0, 2, 6, 2, Q("46 mm")),
    Sketcher.Constraint("DistanceY", 0, 2, -1, 1, Q("32.9 mm")),
    Sketcher.Constraint("DistanceX", 1, 2, 1, 1, Q("3.348632 mm")),
    Sketcher.Constraint("DistanceX", 14, 2, 12, 2, Q("5.0263 mm")),
    Sketcher.Constraint("DistanceX", -1, 1, 2, 2, Q("38.651368 mm")),
    Sketcher.Constraint("DistanceX", -1, 1, 12, 2, Q("43.677671 mm")),
    Sketcher.Constraint("DistanceX", -1, 1, 15, 2, Q("40.322329 mm")),
    Sketcher.Constraint("DistanceY", -1, 1, 16, 2, Q("7.174318 mm")),
    Sketcher.Constraint("DistanceY", -1, 1, 18, 2, Q("1.376191 mm")),
    Sketcher.Constraint("DistanceY", 12, 2, 15, 2, Q("5.79612 mm")),
])
pocket2 = body.newObject("PartDesign::Pocket", "Pocket001")
pocket2.Profile = sketch7
pocket2.setExpression("Length", "Params.pocket2_length")

sketch8 = body.newObject("Sketcher::SketchObject", "Sketch007")
sketch8.AttachmentSupport = (doc.getObject("XY_Plane"), [""])
sketch8.MapMode = "FlatFace"
sketch8.AttachmentOffset = App.Placement(V(0, 0, 18.2), App.Rotation())
sketch8.addGeometry([
    Part.LineSegment(V(5, 0, 0), V(27.3, 0, 0)),
    Part.LineSegment(V(27.3, 0, 0), V(27.3, 10.85, 0)),
    Part.LineSegment(V(27.3, 10.85, 0), V(16.15, 22, 0)),
    Part.LineSegment(V(16.15, 22, 0), V(5, 10.85, 0)),
    Part.LineSegment(V(5, 10.85, 0), V(5, 0, 0)),
], False)
sketch8.addConstraint([
    Sketcher.Constraint("Coincident", 0, 2, 1, 1),
    Sketcher.Constraint("Coincident", 1, 2, 2, 1),
    Sketcher.Constraint("Coincident", 2, 2, 3, 1),
    Sketcher.Constraint("Coincident", 3, 2, 4, 1),
    Sketcher.Constraint("Coincident", 4, 2, 0, 1),
    Sketcher.Constraint("Horizontal", 0),
    Sketcher.Constraint("Vertical", 1),
    Sketcher.Constraint("Vertical", 4),
    Sketcher.Constraint("PointOnObject", 0, 2, -1),
    Sketcher.Constraint("Perpendicular", 2, 3),
    Sketcher.Constraint("Horizontal", 1, 2, 3, 2),
    Sketcher.Constraint("Equal", 2, 3),
    Sketcher.Constraint("DistanceX", 0, 1, 0, 2, Q("22.3 mm")),
    Sketcher.Constraint("DistanceY", -1, 1, 2, 2, Q("22 mm")),
    Sketcher.Constraint("DistanceX", -1, 1, 3, 2, Q("5 mm")),
])
sketch8.setExpression("Constraints[12]", "Params.sketch8_width")
pocket3 = body.newObject("PartDesign::Pocket", "Pocket002")
pocket3.Profile = sketch8
pocket3.setExpression("Length", "Params.pocket3_length")

doc.recompute()
